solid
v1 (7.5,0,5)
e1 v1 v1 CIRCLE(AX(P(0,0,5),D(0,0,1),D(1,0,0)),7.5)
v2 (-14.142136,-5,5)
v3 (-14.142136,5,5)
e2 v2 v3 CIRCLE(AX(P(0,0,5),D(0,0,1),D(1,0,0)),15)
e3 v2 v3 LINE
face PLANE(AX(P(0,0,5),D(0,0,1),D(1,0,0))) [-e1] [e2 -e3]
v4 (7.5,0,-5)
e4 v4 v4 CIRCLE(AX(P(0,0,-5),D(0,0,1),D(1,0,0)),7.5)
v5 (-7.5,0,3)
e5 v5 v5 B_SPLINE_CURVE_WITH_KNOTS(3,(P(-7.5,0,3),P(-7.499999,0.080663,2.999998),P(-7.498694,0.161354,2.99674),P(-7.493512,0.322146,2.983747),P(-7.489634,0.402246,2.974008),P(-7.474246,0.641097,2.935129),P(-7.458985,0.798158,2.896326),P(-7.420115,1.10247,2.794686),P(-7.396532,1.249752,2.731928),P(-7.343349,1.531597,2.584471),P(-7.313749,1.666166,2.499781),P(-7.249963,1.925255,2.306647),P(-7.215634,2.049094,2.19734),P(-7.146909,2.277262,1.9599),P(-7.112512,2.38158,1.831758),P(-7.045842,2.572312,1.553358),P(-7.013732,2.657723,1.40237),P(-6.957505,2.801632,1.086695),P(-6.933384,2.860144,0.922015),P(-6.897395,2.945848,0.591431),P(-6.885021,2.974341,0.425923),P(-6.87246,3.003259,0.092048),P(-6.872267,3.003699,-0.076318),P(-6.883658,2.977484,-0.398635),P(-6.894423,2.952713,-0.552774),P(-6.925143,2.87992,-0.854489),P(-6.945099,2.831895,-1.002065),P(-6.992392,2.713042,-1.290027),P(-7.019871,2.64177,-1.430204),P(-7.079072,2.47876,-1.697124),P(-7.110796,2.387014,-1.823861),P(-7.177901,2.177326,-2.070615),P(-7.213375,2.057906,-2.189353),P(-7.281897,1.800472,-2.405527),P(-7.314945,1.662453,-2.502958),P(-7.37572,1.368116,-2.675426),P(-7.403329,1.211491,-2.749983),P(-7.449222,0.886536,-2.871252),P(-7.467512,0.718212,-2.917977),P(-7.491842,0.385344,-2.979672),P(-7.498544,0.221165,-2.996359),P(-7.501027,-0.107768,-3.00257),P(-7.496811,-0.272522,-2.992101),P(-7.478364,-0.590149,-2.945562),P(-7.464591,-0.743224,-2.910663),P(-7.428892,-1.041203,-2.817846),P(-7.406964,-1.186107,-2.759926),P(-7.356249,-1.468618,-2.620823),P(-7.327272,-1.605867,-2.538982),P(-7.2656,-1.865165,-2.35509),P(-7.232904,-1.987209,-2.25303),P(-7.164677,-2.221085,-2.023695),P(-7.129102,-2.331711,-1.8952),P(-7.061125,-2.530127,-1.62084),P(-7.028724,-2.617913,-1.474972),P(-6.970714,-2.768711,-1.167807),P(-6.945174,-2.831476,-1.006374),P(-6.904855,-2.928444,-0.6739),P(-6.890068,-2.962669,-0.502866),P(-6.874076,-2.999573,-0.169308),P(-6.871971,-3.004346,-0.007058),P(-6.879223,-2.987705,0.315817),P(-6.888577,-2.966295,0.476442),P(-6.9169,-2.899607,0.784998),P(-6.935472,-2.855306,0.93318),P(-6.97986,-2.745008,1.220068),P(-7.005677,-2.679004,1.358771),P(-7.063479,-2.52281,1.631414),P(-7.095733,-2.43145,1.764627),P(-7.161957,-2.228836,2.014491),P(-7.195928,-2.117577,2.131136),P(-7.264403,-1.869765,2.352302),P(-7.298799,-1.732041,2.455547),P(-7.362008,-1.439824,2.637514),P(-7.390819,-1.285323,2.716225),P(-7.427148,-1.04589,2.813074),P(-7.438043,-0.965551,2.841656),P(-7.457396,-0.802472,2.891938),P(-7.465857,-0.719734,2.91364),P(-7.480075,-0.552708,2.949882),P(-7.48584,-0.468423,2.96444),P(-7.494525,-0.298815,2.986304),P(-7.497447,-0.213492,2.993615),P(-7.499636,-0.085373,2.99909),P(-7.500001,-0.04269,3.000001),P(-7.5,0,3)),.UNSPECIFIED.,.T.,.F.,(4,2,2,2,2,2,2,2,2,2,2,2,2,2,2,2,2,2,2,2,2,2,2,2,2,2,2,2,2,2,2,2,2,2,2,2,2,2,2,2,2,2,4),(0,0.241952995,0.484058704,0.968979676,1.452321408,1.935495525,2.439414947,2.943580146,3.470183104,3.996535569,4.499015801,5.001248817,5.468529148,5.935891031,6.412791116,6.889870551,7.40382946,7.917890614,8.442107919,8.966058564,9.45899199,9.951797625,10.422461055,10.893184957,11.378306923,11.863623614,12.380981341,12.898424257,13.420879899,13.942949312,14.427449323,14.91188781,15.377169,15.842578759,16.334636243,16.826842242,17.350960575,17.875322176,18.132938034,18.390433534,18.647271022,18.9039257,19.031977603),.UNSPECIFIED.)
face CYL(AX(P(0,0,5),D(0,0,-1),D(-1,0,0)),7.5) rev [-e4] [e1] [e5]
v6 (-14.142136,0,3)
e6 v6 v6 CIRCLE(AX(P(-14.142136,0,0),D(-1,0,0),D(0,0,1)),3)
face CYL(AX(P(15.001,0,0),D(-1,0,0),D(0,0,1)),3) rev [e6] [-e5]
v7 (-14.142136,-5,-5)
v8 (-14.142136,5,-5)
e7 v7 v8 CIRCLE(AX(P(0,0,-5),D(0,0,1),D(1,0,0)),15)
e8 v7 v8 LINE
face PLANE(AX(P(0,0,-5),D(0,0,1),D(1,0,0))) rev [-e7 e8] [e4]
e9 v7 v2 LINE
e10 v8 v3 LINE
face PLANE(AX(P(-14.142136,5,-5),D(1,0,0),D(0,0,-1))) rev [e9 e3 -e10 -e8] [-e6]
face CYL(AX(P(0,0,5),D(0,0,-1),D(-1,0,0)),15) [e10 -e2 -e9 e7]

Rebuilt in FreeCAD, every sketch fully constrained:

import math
import FreeCAD as App
import Part
import Sketcher
from FreeCAD import Vector
Q = App.Units.Quantity

doc = App.newDocument("Part")
body = doc.addObject("PartDesign::Body", "Body")

sketch1 = body.newObject("Sketcher::SketchObject", "Sketch")
sketch1.AttachmentSupport = (doc.getObject("XY_Plane"), [""])
sketch1.MapMode = "FlatFace"
sketch1.addGeometry(Part.Circle(Vector(0, 0, 0), Vector(0, 0, 1), 15), False)
sketch1.addGeometry(Part.Circle(Vector(0, 0, 0), Vector(0, 0, 1), 7.5), False)
sketch1.addConstraint(Sketcher.Constraint("Coincident", 0, 3, -1, 1))
sketch1.addConstraint(Sketcher.Constraint("Coincident", 1, 3, -1, 1))
sketch1.addConstraint(Sketcher.Constraint("Diameter", 0, Q("30 mm")))
sketch1.addConstraint(Sketcher.Constraint("Diameter", 1, Q("15 mm")))
pad1 = body.newObject("PartDesign::Pad", "Pad")
pad1.Profile = sketch1
pad1.Length = 10
pad1.Midplane = True

sketch2 = body.newObject("Sketcher::SketchObject", "Sketch001")
sketch2.AttachmentSupport = (doc.getObject("XY_Plane"), [""])
sketch2.MapMode = "FlatFace"
sketch2.AttachmentOffset = App.Placement(Vector(0, 0, 5), App.Rotation())
sketch2.addGeometry(Part.LineSegment(Vector(-14.142136, -5, 0), Vector(-14.142136, 5, 0)), False)
sketch2.addGeometry(Part.ArcOfCircle(Part.Circle(Vector(0, 0, 0), Vector(0, 0, 1), 15), math.radians(160.528779), math.radians(199.471221)), False)
sketch2.addConstraint(Sketcher.Constraint("Coincident", 0, 1, 1, 2))
sketch2.addConstraint(Sketcher.Constraint("Coincident", 1, 1, 0, 2))
sketch2.addConstraint(Sketcher.Constraint("Vertical", 0))
sketch2.addConstraint(Sketcher.Constraint("Coincident", 1, 3, -1, 1))
sketch2.addConstraint(Sketcher.Constraint("Radius", 1, Q("15 mm")))
sketch2.addConstraint(Sketcher.Constraint("DistanceY", 0, 1, 0, 2, Q("10 mm")))
pocket1 = body.newObject("PartDesign::Pocket", "Pocket")
pocket1.Profile = sketch2
pocket1.Type = "ThroughAll"

sketch3 = body.newObject("Sketcher::SketchObject", "Sketch002")
sketch3.AttachmentSupport = (doc.getObject("YZ_Plane"), [""])
sketch3.MapMode = "FlatFace"
sketch3.AttachmentOffset = App.Placement(Vector(0, 0, -14.142136), App.Rotation())
sketch3.addGeometry(Part.Circle(Vector(0, 0, 0), Vector(0, 0, 1), 3), False)
sketch3.addConstraint(Sketcher.Constraint("Coincident", 0, 3, -1, 1))
sketch3.addConstraint(Sketcher.Constraint("Diameter", 0, Q("6 mm")))
pocket2 = body.newObject("PartDesign::Pocket", "Pocket001")
pocket2.Profile = sketch3
pocket2.Type = "UpToFirst"
pocket2.Reversed = True

doc.recompute()
